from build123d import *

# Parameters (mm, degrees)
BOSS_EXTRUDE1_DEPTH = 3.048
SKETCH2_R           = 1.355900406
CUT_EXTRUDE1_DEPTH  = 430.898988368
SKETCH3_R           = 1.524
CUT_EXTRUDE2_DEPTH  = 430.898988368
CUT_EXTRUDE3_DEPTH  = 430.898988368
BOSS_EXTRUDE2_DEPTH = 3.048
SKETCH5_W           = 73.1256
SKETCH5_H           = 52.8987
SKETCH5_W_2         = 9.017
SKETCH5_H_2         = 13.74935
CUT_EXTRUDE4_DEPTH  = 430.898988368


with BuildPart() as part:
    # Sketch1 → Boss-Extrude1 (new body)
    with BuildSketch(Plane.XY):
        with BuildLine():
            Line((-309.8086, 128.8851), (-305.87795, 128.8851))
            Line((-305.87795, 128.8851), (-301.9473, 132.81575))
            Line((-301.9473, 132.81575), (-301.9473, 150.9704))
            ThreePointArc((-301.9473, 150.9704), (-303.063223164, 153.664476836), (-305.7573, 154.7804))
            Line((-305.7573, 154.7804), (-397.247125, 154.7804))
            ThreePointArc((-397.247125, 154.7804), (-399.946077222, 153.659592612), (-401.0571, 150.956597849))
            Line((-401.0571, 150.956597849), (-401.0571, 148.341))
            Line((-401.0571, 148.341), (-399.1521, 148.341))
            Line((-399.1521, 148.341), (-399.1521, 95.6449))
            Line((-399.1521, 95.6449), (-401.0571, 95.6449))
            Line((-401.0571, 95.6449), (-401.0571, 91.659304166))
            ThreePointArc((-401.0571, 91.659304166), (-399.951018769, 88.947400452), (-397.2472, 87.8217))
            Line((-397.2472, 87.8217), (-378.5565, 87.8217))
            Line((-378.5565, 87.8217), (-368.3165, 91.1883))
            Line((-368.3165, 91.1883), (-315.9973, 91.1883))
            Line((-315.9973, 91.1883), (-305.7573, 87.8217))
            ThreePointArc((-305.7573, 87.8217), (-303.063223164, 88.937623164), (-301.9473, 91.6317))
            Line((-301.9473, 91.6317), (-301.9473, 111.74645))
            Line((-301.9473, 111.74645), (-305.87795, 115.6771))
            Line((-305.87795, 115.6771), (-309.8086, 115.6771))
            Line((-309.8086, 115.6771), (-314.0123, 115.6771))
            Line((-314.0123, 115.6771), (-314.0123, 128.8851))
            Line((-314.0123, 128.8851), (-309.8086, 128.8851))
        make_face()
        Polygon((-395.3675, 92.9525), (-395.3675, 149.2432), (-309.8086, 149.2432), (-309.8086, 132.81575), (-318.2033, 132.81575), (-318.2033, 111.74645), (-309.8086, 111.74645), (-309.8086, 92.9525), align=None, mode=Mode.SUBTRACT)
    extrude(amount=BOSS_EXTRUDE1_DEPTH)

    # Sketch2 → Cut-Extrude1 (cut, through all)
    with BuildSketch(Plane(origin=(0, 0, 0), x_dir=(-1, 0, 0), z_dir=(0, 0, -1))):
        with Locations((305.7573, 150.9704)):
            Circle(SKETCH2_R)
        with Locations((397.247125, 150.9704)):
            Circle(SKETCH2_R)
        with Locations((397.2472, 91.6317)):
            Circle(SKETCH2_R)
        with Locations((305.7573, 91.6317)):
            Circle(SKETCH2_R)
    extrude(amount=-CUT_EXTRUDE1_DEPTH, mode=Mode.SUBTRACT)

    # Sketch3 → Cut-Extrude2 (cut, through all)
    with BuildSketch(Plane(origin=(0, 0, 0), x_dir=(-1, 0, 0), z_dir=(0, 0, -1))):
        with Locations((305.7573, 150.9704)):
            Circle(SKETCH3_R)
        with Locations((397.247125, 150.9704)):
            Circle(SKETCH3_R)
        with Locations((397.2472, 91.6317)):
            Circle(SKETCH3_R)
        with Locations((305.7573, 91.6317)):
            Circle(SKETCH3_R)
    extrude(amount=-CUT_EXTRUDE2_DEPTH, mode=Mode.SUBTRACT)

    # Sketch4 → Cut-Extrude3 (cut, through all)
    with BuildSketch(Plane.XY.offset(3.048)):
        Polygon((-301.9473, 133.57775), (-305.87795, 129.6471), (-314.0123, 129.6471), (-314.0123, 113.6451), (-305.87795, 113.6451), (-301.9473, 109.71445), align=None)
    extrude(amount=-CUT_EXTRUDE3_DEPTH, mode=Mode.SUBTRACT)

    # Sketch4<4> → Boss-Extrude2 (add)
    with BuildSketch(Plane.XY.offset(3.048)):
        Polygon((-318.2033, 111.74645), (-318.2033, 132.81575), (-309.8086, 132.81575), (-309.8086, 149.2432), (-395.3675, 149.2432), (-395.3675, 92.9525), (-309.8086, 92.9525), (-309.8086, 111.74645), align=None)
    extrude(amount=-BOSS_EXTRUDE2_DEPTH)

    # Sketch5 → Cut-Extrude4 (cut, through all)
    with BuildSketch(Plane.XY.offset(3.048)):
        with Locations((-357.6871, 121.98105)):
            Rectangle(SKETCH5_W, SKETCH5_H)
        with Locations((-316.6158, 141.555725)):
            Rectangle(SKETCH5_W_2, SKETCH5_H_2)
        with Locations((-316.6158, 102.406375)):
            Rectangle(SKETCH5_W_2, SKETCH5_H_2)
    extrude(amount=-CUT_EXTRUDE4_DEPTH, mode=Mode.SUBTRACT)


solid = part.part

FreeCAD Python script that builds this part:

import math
import FreeCAD as App
import Part
import Sketcher
Q = App.Units.Quantity

doc = App.newDocument("Part")
body = doc.addObject("PartDesign::Body", "Body")

# Sketch on XY plane
sketch1 = body.newObject("Sketcher::SketchObject", "Sketch")
sketch1.AttachmentSupport = (doc.getObject("XY_Plane"), [""])
sketch1.MapMode = "FlatFace"
sketch1.addGeometry([
    Part.LineSegment(App.Vector(-305.87795, 128.8851, 0), App.Vector(-301.9473, 132.81575, 0)),  # 0
    Part.LineSegment(App.Vector(-301.9473, 132.81575, 0), App.Vector(-301.9473, 150.9704, 0)),  # 1
    Part.ArcOfCircle(Part.Circle(App.Vector(-305.7573, 150.9704, 0), App.Vector(0, 0, 1), 3.81), math.radians(0), math.radians(90)),  # 2
    Part.LineSegment(App.Vector(-305.7573, 154.7804, 0), App.Vector(-397.247125, 154.7804, 0)),  # 3
    Part.ArcOfCircle(Part.Circle(App.Vector(-397.247125, 150.9704, 0), App.Vector(0, 0, 1), 3.81), math.radians(90), math.radians(180.207561)),  # 4
    Part.LineSegment(App.Vector(-401.0571, 150.956598, 0), App.Vector(-401.0571, 148.341, 0)),  # 5
    Part.LineSegment(App.Vector(-401.0571, 148.341, 0), App.Vector(-399.1521, 148.341, 0)),  # 6
    Part.LineSegment(App.Vector(-399.1521, 148.341, 0), App.Vector(-399.1521, 95.6449, 0)),  # 7
    Part.LineSegment(App.Vector(-399.1521, 95.6449, 0), App.Vector(-401.0571, 95.6449, 0)),  # 8
    Part.LineSegment(App.Vector(-401.0571, 95.6449, 0), App.Vector(-401.0571, 91.659304, 0)),  # 9
    Part.ArcOfCircle(Part.Circle(App.Vector(-397.2472, 91.6317, 0), App.Vector(0, 0, 1), 3.81), math.radians(179.584878), math.radians(270)),  # 10
    Part.LineSegment(App.Vector(-397.2472, 87.8217, 0), App.Vector(-378.5565, 87.8217, 0)),  # 11
    Part.LineSegment(App.Vector(-378.5565, 87.8217, 0), App.Vector(-368.3165, 91.1883, 0)),  # 12
    Part.LineSegment(App.Vector(-368.3165, 91.1883, 0), App.Vector(-315.9973, 91.1883, 0)),  # 13
    Part.LineSegment(App.Vector(-315.9973, 91.1883, 0), App.Vector(-305.7573, 87.8217, 0)),  # 14
    Part.ArcOfCircle(Part.Circle(App.Vector(-305.7573, 91.6317, 0), App.Vector(0, 0, 1), 3.81), math.radians(-90), math.radians(0)),  # 15
    Part.LineSegment(App.Vector(-301.9473, 91.6317, 0), App.Vector(-301.9473, 111.74645, 0)),  # 16
    Part.LineSegment(App.Vector(-301.9473, 111.74645, 0), App.Vector(-305.87795, 115.6771, 0)),  # 17
    Part.LineSegment(App.Vector(-305.87795, 115.6771, 0), App.Vector(-314.0123, 115.6771, 0)),  # 18
    Part.LineSegment(App.Vector(-314.0123, 115.6771, 0), App.Vector(-314.0123, 128.8851, 0)),  # 19
    Part.LineSegment(App.Vector(-314.0123, 128.8851, 0), App.Vector(-305.87795, 128.8851, 0)),  # 20
    Part.LineSegment(App.Vector(-309.8086, 92.9525, 0), App.Vector(-395.3675, 92.9525, 0)),  # 21
    Part.LineSegment(App.Vector(-395.3675, 92.9525, 0), App.Vector(-395.3675, 149.2432, 0)),  # 22
    Part.LineSegment(App.Vector(-395.3675, 149.2432, 0), App.Vector(-309.8086, 149.2432, 0)),  # 23
    Part.LineSegment(App.Vector(-309.8086, 149.2432, 0), App.Vector(-309.8086, 132.81575, 0)),  # 24
    Part.LineSegment(App.Vector(-309.8086, 132.81575, 0), App.Vector(-318.2033, 132.81575, 0)),  # 25
    Part.LineSegment(App.Vector(-318.2033, 132.81575, 0), App.Vector(-318.2033, 111.74645, 0)),  # 26
    Part.LineSegment(App.Vector(-318.2033, 111.74645, 0), App.Vector(-309.8086, 111.74645, 0)),  # 27
    Part.LineSegment(App.Vector(-309.8086, 111.74645, 0), App.Vector(-309.8086, 92.9525, 0)),  # 28
], False)
sketch1.addConstraint([
    Sketcher.Constraint("Coincident", 0, 2, 1, 1),
    Sketcher.Constraint("Tangent", 1, 2, 2, 1),
    Sketcher.Constraint("Tangent", 2, 2, 3, 1),
    Sketcher.Constraint("Tangent", 3, 2, 4, 1),
    Sketcher.Constraint("Coincident", 4, 2, 5, 1),
    Sketcher.Constraint("Coincident", 5, 2, 6, 1),
    Sketcher.Constraint("Coincident", 6, 2, 7, 1),
    Sketcher.Constraint("Coincident", 7, 2, 8, 1),
    Sketcher.Constraint("Coincident", 8, 2, 9, 1),
    Sketcher.Constraint("Coincident", 9, 2, 10, 1),
    Sketcher.Constraint("Tangent", 10, 2, 11, 1),
    Sketcher.Constraint("Coincident", 11, 2, 12, 1),
    Sketcher.Constraint("Coincident", 12, 2, 13, 1),
    Sketcher.Constraint("Coincident", 13, 2, 14, 1),
    Sketcher.Constraint("Coincident", 14, 2, 15, 1),
    Sketcher.Constraint("Tangent", 15, 2, 16, 1),
    Sketcher.Constraint("Coincident", 16, 2, 17, 1),
    Sketcher.Constraint("Coincident", 17, 2, 18, 1),
    Sketcher.Constraint("Coincident", 18, 2, 19, 1),
    Sketcher.Constraint("Coincident", 19, 2, 20, 1),
    Sketcher.Constraint("Coincident", 20, 2, 0, 1),
    Sketcher.Constraint("Coincident", 21, 2, 22, 1),
    Sketcher.Constraint("Coincident", 22, 2, 23, 1),
    Sketcher.Constraint("Coincident", 23, 2, 24, 1),
    Sketcher.Constraint("Coincident", 24, 2, 25, 1),
    Sketcher.Constraint("Coincident", 25, 2, 26, 1),
    Sketcher.Constraint("Coincident", 26, 2, 27, 1),
    Sketcher.Constraint("Coincident", 27, 2, 28, 1),
    Sketcher.Constraint("Coincident", 28, 2, 21, 1),
    Sketcher.Constraint("Vertical", 1),
    Sketcher.Constraint("Horizontal", 3),
    Sketcher.Constraint("Vertical", 5),
    Sketcher.Constraint("Horizontal", 6),
    Sketcher.Constraint("Vertical", 7),
    Sketcher.Constraint("Horizontal", 8),
    Sketcher.Constraint("Vertical", 9),
    Sketcher.Constraint("Horizontal", 11),
    Sketcher.Constraint("Horizontal", 13),
    Sketcher.Constraint("Vertical", 16),
    Sketcher.Constraint("Horizontal", 18),
    Sketcher.Constraint("Vertical", 19),
    Sketcher.Constraint("Horizontal", 20),
    Sketcher.Constraint("Horizontal", 21),
    Sketcher.Constraint("Vertical", 22),
    Sketcher.Constraint("Horizontal", 23),
    Sketcher.Constraint("Vertical", 24),
    Sketcher.Constraint("Horizontal", 25),
    Sketcher.Constraint("Vertical", 26),
    Sketcher.Constraint("Horizontal", 27),
    Sketcher.Constraint("Vertical", 28),
    Sketcher.Constraint("Equal", 2, 4),
    Sketcher.Constraint("Equal", 4, 10),
    Sketcher.Constraint("Equal", 10, 15),
    Sketcher.Constraint("Perpendicular", 0, 17),
    Sketcher.Constraint("Horizontal", 10, 3, 15, 3),
    Sketcher.Constraint("Horizontal", 0, 2, 24, 2),
    Sketcher.Constraint("Horizontal", 16, 2, 26, 2),
    Sketcher.Constraint("Vertical", 2, 3, 15, 3),
    Sketcher.Constraint("Vertical", 5, 2, 8, 2),
    Sketcher.Constraint("Vertical", 2, 2, 14, 2),
    Sketcher.Constraint("Vertical", 17, 2, 20, 2),
    Sketcher.Constraint("Vertical", 24, 2, 27, 2),
    Sketcher.Constraint("Equal", 12, 14),
    Sketcher.Constraint("Equal", 0, 17),
    Sketcher.Constraint("Radius", 2, Q("0.15 in")),
    Sketcher.Constraint("DistanceY", 19, 1, 19, 2, Q("0.52 in")),
    Sketcher.Constraint("DistanceX", 6, 1, 6, 2, Q("0.075 in")),
    Sketcher.Constraint("DistanceX", 25, 2, 0, 2, Q("0.64 in")),
    Sketcher.Constraint("DistanceX", 25, 2, 25, 1, Q("0.3305 in")),
    Sketcher.Constraint("DistanceY", 26, 2, 26, 1, Q("0.8295 in")),
    Sketcher.Constraint("DistanceY", 10, 3, 7, 2, Q("0.158 in")),
    Sketcher.Constraint("DistanceX", 7, 2, 12, 2, Q("1.214 in")),
    Sketcher.Constraint("DistanceX", 18, 2, 16, 2, Q("0.475 in")),
    Sketcher.Constraint("DistanceY", 10, 3, 21, 2, Q("0.052 in")),
    Sketcher.Constraint("DistanceX", 7, 2, 21, 2, Q("0.149 in")),
    Sketcher.Constraint("DistanceY", 22, 2, 4, 3, Q("0.068 in")),
    Sketcher.Constraint("DistanceX", 11, 1, 11, 2, Q("18.6907 mm")),
    Sketcher.Constraint("DistanceX", 13, 1, 13, 2, Q("52.3192 mm")),
    Sketcher.Constraint("DistanceX", 21, 2, 21, 1, Q("85.5589 mm")),
    Sketcher.Constraint("DistanceY", 7, 2, 7, 1, Q("52.6961 mm")),
    Sketcher.Constraint("DistanceY", 22, 1, 22, 2, Q("56.2907 mm")),
    Sketcher.Constraint("DistanceY", 19, 2, 2, 3, Q("0.8695 in")),
    Sketcher.Constraint("DistanceX", 2, 3, -1, 1, Q("305.7573 mm")),
    Sketcher.Constraint("DistanceY", -1, 1, 2, 3, Q("150.9704 mm")),
    Sketcher.Constraint("DistanceY", -1, 1, 12, 2, Q("91.1883 mm")),
    Sketcher.Constraint("DistanceX", 3, 2, 3, 1, Q("91.489825 mm")),
])
pad1 = body.newObject("PartDesign::Pad", "Pad")
pad1.Profile = sketch1
pad1.Length = Q("0.12 in")

# Sketch on XY plane
sketch2 = body.newObject("Sketcher::SketchObject", "Sketch001")
sketch2.AttachmentSupport = (doc.getObject("XY_Plane"), [""])
sketch2.MapMode = "FlatFace"
sketch2.addGeometry([
    Part.Circle(App.Vector(-305.7573, 150.9704, 0), App.Vector(0, 0, 1), 1.3559),
    Part.Circle(App.Vector(-397.247125, 150.9704, 0), App.Vector(0, 0, 1), 1.3559),
    Part.Circle(App.Vector(-397.2472, 91.6317, 0), App.Vector(0, 0, 1), 1.3559),
    Part.Circle(App.Vector(-305.7573, 91.6317, 0), App.Vector(0, 0, 1), 1.3559),
], False)
sketch2.addConstraint([
    Sketcher.Constraint("Equal", 0, 1),
    Sketcher.Constraint("Equal", 1, 2),
    Sketcher.Constraint("Equal", 2, 3),
    Sketcher.Constraint("Horizontal", 0, 3, 1, 3),
    Sketcher.Constraint("Horizontal", 2, 3, 3, 3),
    Sketcher.Constraint("Vertical", 0, 3, 3, 3),
    Sketcher.Constraint("Diameter", 0, Q("2.711801 mm")),
    Sketcher.Constraint("DistanceX", 0, 3, -1, 1, Q("305.7573 mm")),
    Sketcher.Constraint("DistanceY", -1, 1, 0, 3, Q("150.9704 mm")),
    Sketcher.Constraint("DistanceX", 2, 3, -1, 1, Q("397.2472 mm")),
    Sketcher.Constraint("DistanceY", -1, 1, 2, 3, Q("91.6317 mm")),
    Sketcher.Constraint("DistanceX", 1, 3, -1, 1, Q("397.247125 mm")),
])
pocket1 = body.newObject("PartDesign::Pocket", "Pocket")
pocket1.Profile = sketch2
pocket1.Type = "ThroughAll"
pocket1.Reversed = True

# Sketch on XY plane
sketch3 = body.newObject("Sketcher::SketchObject", "Sketch002")
sketch3.AttachmentSupport = (doc.getObject("XY_Plane"), [""])
sketch3.MapMode = "FlatFace"
sketch3.addGeometry([
    Part.Circle(App.Vector(-305.7573, 150.9704, 0), App.Vector(0, 0, 1), 1.524),
    Part.Circle(App.Vector(-397.247125, 150.9704, 0), App.Vector(0, 0, 1), 1.524),
    Part.Circle(App.Vector(-397.2472, 91.6317, 0), App.Vector(0, 0, 1), 1.524),
    Part.Circle(App.Vector(-305.7573, 91.6317, 0), App.Vector(0, 0, 1), 1.524),
], False)
sketch3.addConstraint([
    Sketcher.Constraint("Equal", 0, 1),
    Sketcher.Constraint("Equal", 1, 2),
    Sketcher.Constraint("Equal", 2, 3),
    Sketcher.Constraint("Horizontal", 0, 3, 1, 3),
    Sketcher.Constraint("Horizontal", 2, 3, 3, 3),
    Sketcher.Constraint("Vertical", 0, 3, 3, 3),
    Sketcher.Constraint("Diameter", 0, Q("0.12 in")),
    Sketcher.Constraint("DistanceX", 0, 3, -1, 1, Q("305.7573 mm")),
    Sketcher.Constraint("DistanceY", -1, 1, 0, 3, Q("150.9704 mm")),
    Sketcher.Constraint("DistanceX", 2, 3, -1, 1, Q("397.2472 mm")),
    Sketcher.Constraint("DistanceY", -1, 1, 2, 3, Q("91.6317 mm")),
    Sketcher.Constraint("DistanceX", 1, 3, -1, 1, Q("397.247125 mm")),
])
pocket2 = body.newObject("PartDesign::Pocket", "Pocket001")
pocket2.Profile = sketch3
pocket2.Type = "ThroughAll"
pocket2.Reversed = True

# Sketch on XY plane
sketch4 = body.newObject("Sketcher::SketchObject", "Sketch003")
sketch4.AttachmentSupport = (doc.getObject("XY_Plane"), [""])
sketch4.MapMode = "FlatFace"
sketch4.AttachmentOffset = App.Placement(App.Vector(0, 0, 0.12 * 25.4), App.Rotation())
sketch4.addGeometry([
    Part.LineSegment(App.Vector(-301.9473, 133.57775, 0), App.Vector(-305.87795, 129.6471, 0)),  # 0
    Part.LineSegment(App.Vector(-305.87795, 129.6471, 0), App.Vector(-314.0123, 129.6471, 0)),  # 1
    Part.LineSegment(App.Vector(-314.0123, 129.6471, 0), App.Vector(-314.0123, 113.6451, 0)),  # 2
    Part.LineSegment(App.Vector(-314.0123, 113.6451, 0), App.Vector(-305.87795, 113.6451, 0)),  # 3
    Part.LineSegment(App.Vector(-305.87795, 113.6451, 0), App.Vector(-301.9473, 109.71445, 0)),  # 4
    Part.LineSegment(App.Vector(-301.9473, 109.71445, 0), App.Vector(-301.9473, 133.57775, 0)),  # 5
], False)
sketch4.addConstraint([
    Sketcher.Constraint("Coincident", 0, 2, 1, 1),
    Sketcher.Constraint("Coincident", 1, 2, 2, 1),
    Sketcher.Constraint("Coincident", 2, 2, 3, 1),
    Sketcher.Constraint("Coincident", 3, 2, 4, 1),
    Sketcher.Constraint("Coincident", 4, 2, 5, 1),
    Sketcher.Constraint("Coincident", 5, 2, 0, 1),
    Sketcher.Constraint("Horizontal", 1),
    Sketcher.Constraint("Vertical", 2),
    Sketcher.Constraint("Horizontal", 3),
    Sketcher.Constraint("Vertical", 5),
    Sketcher.Constraint("Perpendicular", 0, 4),
    Sketcher.Constraint("Vertical", 0, 2, 3, 2),
    Sketcher.Constraint("Equal", 0, 4),
    Sketcher.Constraint("DistanceY", 2, 2, 2, 1, Q("0.63 in")),
    Sketcher.Constraint("DistanceY", 5, 1, 5, 2, Q("0.9395 in")),
    Sketcher.Constraint("DistanceX", 2, 2, 4, 2, Q("0.475 in")),
    Sketcher.Constraint("DistanceY", -1, 1, 0, 2, Q("129.6471 mm")),
    Sketcher.Constraint("DistanceX", 1, 2, -1, 1, Q("314.0123 mm")),
])
pocket3 = body.newObject("PartDesign::Pocket", "Pocket002")
pocket3.Profile = sketch4
pocket3.Type = "ThroughAll"

# Sketch on XY plane
sketch5 = body.newObject("Sketcher::SketchObject", "Sketch004")
sketch5.AttachmentSupport = (doc.getObject("XY_Plane"), [""])
sketch5.MapMode = "FlatFace"
sketch5.AttachmentOffset = App.Placement(App.Vector(0, 0, 0.12 * 25.4), App.Rotation())
sketch5.addGeometry([
    Part.LineSegment(App.Vector(-318.2033, 111.74645, 0), App.Vector(-318.2033, 132.81575, 0)),  # 0
    Part.LineSegment(App.Vector(-318.2033, 132.81575, 0), App.Vector(-309.8086, 132.81575, 0)),  # 1
    Part.LineSegment(App.Vector(-309.8086, 132.81575, 0), App.Vector(-309.8086, 149.2432, 0)),  # 2
    Part.LineSegment(App.Vector(-309.8086, 149.2432, 0), App.Vector(-395.3675, 149.2432, 0)),  # 3
    Part.LineSegment(App.Vector(-395.3675, 149.2432, 0), App.Vector(-395.3675, 92.9525, 0)),  # 4
    Part.LineSegment(App.Vector(-395.3675, 92.9525, 0), App.Vector(-309.8086, 92.9525, 0)),  # 5
    Part.LineSegment(App.Vector(-309.8086, 92.9525, 0), App.Vector(-309.8086, 111.74645, 0)),  # 6
    Part.LineSegment(App.Vector(-309.8086, 111.74645, 0), App.Vector(-318.2033, 111.74645, 0)),  # 7
], False)
sketch5.addConstraint([
    Sketcher.Constraint("Coincident", 0, 2, 1, 1),
    Sketcher.Constraint("Coincident", 1, 2, 2, 1),
    Sketcher.Constraint("Coincident", 2, 2, 3, 1),
    Sketcher.Constraint("Coincident", 3, 2, 4, 1),
    Sketcher.Constraint("Coincident", 4, 2, 5, 1),
    Sketcher.Constraint("Coincident", 5, 2, 6, 1),
    Sketcher.Constraint("Coincident", 6, 2, 7, 1),
    Sketcher.Constraint("Coincident", 7, 2, 0, 1),
    Sketcher.Constraint("Vertical", 0),
    Sketcher.Constraint("Horizontal", 1),
    Sketcher.Constraint("Vertical", 2),
    Sketcher.Constraint("Horizontal", 3),
    Sketcher.Constraint("Vertical", 4),
    Sketcher.Constraint("Horizontal", 5),
    Sketcher.Constraint("Vertical", 6),
    Sketcher.Constraint("Horizontal", 7),
    Sketcher.Constraint("Vertical", 2, 2, 5, 2),
    Sketcher.Constraint("DistanceX", 1, 1, 1, 2, Q("0.3305 in")),
    Sketcher.Constraint("DistanceY", 0, 1, 0, 2, Q("0.8295 in")),
    Sketcher.Constraint("DistanceX", 3, 2, 3, 1, Q("85.5589 mm")),
    Sketcher.Constraint("DistanceY", 4, 2, 4, 1, Q("56.2907 mm")),
    Sketcher.Constraint("DistanceY", 2, 1, 2, 2, Q("16.42745 mm")),
    Sketcher.Constraint("DistanceX", 0, 2, -1, 1, Q("318.2033 mm")),
    Sketcher.Constraint("DistanceY", -1, 1, 2, 2, Q("149.2432 mm")),
])
pad2 = body.newObject("PartDesign::Pad", "Pad001")
pad2.Profile = sketch5
pad2.Length = Q("0.12 in")
pad2.Reversed = True

# Sketch on XY plane
sketch6 = body.newObject("Sketcher::SketchObject", "Sketch005")
sketch6.AttachmentSupport = (doc.getObject("XY_Plane"), [""])
sketch6.MapMode = "FlatFace"
sketch6.AttachmentOffset = App.Placement(App.Vector(0, 0, 0.12 * 25.4), App.Rotation())
sketch6.addGeometry([
    Part.LineSegment(App.Vector(-394.2499, 148.4304, 0), App.Vector(-394.2499, 95.5317, 0)),  # 0
    Part.LineSegment(App.Vector(-394.2499, 95.5317, 0), App.Vector(-312.1073, 95.5317, 0)),  # 1
    Part.LineSegment(App.Vector(-312.1073, 95.5317, 0), App.Vector(-312.1073, 109.28105, 0)),  # 2
    Part.LineSegment(App.Vector(-312.1073, 109.28105, 0), App.Vector(-321.1243, 109.28105, 0)),  # 3
    Part.LineSegment(App.Vector(-321.1243, 109.28105, 0), App.Vector(-321.1243, 134.68105, 0)),  # 4
    Part.LineSegment(App.Vector(-321.1243, 134.68105, 0), App.Vector(-312.1073, 134.68105, 0)),  # 5
    Part.LineSegment(App.Vector(-312.1073, 134.68105, 0), App.Vector(-312.1073, 148.4304, 0)),  # 6
    Part.LineSegment(App.Vector(-312.1073, 148.4304, 0), App.Vector(-394.2499, 148.4304, 0)),  # 7
], False)
sketch6.addConstraint([
    Sketcher.Constraint("Coincident", 0, 2, 1, 1),
    Sketcher.Constraint("Coincident", 1, 2, 2, 1),
    Sketcher.Constraint("Coincident", 2, 2, 3, 1),
    Sketcher.Constraint("Coincident", 3, 2, 4, 1),
    Sketcher.Constraint("Coincident", 4, 2, 5, 1),
    Sketcher.Constraint("Coincident", 5, 2, 6, 1),
    Sketcher.Constraint("Coincident", 6, 2, 7, 1),
    Sketcher.Constraint("Coincident", 7, 2, 0, 1),
    Sketcher.Constraint("Vertical", 0),
    Sketcher.Constraint("Horizontal", 1),
    Sketcher.Constraint("Vertical", 2),
    Sketcher.Constraint("Horizontal", 3),
    Sketcher.Constraint("Vertical", 4),
    Sketcher.Constraint("Horizontal", 5),
    Sketcher.Constraint("Vertical", 6),
    Sketcher.Constraint("Horizontal", 7),
    Sketcher.Constraint("Vertical", 2, 2, 5, 2),
    Sketcher.Constraint("Equal", 2, 6),
    Sketcher.Constraint("DistanceY", 4, 1, 4, 2, Q("1 in")),
    Sketcher.Constraint("DistanceX", 3, 2, 3, 1, Q("0.355 in")),
    Sketcher.Constraint("DistanceX", 1, 1, 1, 2, Q("82.1426 mm")),
    Sketcher.Constraint("DistanceY", 0, 2, 0, 1, Q("52.8987 mm")),
    Sketcher.Constraint("DistanceX", 0, 2, -1, 1, Q("394.2499 mm")),
    Sketcher.Constraint("DistanceY", -1, 1, 0, 2, Q("95.5317 mm")),
])
pocket4 = body.newObject("PartDesign::Pocket", "Pocket003")
pocket4.Profile = sketch6
pocket4.Type = "ThroughAll"

doc.recompute()
